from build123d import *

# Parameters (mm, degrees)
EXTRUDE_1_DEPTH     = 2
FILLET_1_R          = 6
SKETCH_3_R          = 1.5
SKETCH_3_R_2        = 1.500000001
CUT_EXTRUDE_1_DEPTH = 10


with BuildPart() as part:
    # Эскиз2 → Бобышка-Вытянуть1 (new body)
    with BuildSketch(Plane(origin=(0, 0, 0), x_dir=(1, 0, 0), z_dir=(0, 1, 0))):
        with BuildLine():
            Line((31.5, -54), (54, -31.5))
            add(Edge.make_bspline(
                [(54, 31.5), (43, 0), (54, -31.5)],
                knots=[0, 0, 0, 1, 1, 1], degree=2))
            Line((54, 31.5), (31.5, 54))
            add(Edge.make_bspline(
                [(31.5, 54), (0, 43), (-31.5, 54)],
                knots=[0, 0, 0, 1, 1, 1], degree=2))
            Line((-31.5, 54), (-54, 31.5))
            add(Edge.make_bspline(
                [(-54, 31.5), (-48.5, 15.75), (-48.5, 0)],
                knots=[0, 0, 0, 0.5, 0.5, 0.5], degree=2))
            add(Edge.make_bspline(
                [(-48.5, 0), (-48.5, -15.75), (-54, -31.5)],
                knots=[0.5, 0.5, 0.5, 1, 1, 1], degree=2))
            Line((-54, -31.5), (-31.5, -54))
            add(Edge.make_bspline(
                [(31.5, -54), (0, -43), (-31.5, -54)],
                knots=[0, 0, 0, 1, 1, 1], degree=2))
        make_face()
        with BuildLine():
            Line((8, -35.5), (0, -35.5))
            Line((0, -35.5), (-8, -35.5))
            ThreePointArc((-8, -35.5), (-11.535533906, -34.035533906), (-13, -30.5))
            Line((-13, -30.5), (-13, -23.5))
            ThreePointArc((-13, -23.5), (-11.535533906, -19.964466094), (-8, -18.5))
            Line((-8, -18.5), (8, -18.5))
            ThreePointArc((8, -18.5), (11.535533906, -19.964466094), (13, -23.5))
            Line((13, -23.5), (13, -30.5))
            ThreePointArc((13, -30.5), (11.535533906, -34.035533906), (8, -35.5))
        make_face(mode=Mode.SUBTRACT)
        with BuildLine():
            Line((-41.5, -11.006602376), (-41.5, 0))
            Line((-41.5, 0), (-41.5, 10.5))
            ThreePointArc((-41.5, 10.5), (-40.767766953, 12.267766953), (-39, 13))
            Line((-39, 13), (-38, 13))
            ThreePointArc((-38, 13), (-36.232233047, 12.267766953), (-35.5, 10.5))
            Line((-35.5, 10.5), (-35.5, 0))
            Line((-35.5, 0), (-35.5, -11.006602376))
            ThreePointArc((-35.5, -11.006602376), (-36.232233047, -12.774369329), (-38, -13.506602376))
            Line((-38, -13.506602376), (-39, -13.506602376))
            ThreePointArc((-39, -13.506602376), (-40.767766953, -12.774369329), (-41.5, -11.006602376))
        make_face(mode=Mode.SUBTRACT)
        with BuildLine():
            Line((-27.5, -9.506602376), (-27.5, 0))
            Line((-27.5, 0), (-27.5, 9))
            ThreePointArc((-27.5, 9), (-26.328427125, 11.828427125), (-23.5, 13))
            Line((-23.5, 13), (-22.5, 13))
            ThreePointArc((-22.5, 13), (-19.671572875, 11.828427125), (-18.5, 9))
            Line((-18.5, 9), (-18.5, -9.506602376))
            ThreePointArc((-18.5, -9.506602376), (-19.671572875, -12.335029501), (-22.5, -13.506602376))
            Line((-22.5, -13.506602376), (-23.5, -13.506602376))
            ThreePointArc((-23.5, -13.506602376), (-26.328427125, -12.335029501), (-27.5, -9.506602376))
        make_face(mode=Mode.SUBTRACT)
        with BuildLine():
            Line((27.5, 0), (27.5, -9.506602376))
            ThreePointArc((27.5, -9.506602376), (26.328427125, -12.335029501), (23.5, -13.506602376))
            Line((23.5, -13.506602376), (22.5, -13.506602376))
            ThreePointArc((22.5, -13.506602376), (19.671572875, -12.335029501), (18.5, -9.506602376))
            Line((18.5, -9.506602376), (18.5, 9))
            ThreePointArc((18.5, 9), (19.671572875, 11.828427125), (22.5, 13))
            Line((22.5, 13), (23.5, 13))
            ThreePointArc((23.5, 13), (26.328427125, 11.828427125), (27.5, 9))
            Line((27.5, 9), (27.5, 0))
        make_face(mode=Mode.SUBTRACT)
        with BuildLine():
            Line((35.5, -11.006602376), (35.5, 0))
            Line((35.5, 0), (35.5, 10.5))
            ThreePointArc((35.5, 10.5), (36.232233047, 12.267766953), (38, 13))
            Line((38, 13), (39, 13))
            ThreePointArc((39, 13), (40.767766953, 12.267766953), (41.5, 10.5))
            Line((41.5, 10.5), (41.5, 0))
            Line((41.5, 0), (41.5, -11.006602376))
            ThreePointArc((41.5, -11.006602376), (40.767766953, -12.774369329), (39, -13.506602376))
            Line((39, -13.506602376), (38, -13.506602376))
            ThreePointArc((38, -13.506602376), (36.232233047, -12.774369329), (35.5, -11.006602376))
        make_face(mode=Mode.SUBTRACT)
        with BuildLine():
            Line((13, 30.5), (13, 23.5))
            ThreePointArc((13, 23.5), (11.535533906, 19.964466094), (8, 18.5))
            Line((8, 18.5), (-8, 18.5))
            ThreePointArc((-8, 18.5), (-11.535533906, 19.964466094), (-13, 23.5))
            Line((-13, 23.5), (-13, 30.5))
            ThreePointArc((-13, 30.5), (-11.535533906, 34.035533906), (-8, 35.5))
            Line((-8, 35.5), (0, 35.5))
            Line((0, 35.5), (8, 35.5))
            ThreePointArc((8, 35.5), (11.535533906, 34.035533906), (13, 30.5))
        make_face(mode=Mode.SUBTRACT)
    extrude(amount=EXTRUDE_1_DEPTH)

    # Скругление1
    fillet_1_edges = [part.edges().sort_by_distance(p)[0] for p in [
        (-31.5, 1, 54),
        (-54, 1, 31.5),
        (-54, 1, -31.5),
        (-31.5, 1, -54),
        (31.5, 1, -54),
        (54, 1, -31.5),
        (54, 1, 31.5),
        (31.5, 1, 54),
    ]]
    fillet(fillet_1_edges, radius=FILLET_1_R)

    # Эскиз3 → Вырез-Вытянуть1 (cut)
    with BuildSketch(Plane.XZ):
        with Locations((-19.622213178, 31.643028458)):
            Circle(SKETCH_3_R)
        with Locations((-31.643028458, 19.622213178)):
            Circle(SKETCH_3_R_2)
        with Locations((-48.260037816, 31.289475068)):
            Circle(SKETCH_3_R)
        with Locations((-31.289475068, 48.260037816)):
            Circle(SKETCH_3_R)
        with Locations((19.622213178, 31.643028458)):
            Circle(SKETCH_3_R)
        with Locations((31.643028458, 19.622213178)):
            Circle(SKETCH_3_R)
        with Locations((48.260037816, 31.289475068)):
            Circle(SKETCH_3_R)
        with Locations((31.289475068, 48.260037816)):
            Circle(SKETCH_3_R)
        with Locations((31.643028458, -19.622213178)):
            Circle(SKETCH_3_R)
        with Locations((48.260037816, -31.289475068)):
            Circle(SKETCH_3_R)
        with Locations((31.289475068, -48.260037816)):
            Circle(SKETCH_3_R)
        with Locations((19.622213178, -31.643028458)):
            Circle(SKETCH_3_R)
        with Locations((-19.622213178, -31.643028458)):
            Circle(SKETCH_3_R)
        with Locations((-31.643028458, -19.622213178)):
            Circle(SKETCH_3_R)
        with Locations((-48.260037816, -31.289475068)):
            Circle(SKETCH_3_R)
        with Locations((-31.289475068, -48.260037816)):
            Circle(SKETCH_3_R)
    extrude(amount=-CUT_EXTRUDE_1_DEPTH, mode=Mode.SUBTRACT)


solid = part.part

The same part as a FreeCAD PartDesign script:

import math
import FreeCAD as App
import Part
import Sketcher

V = App.Vector


def edges_at(feature, points):
    """Names of the edges that pass closest to the given points."""
    edges = feature.Shape.Edges
    near = lambda p: min(range(len(edges)), key=lambda i: edges[i].distToShape(Part.Vertex(*p))[0])
    return sorted({f"Edge{near(p) + 1}" for p in points})

doc = App.newDocument("Part")
body = doc.addObject("PartDesign::Body", "Body")

# Sketch on XZ plane
sketch1 = body.newObject("Sketcher::SketchObject", "Sketch")
sketch1.AttachmentSupport = (doc.getObject("XZ_Plane"), [""])
sketch1.MapMode = "FlatFace"
sketch1.addGeometry([
    Part.LineSegment(V(31.5, 54, 0), V(54, 31.5, 0)),  # 0
    Part.BSplineCurve([V(54, -31.5, 0), V(43, 0, 0), V(54, 31.5, 0)], [3, 3], [0, 1], False, 2, [1, 1, 1], False),  # 1
    Part.LineSegment(V(54, -31.5, 0), V(31.5, -54, 0)),  # 2
    Part.BSplineCurve([V(31.5, -54, 0), V(0, -43, 0), V(-31.5, -54, 0)], [3, 3], [0, 1], False, 2, [1, 1, 1], False),  # 3
    Part.LineSegment(V(-31.5, -54, 0), V(-54, -31.5, 0)),  # 4
    Part.BSplineCurve([V(-54, -31.5, 0), V(-43, 0, 0), V(-54, 31.5, 0)], [3, 3], [0, 1], False, 2, [1, 1, 1], False),  # 5
    Part.LineSegment(V(-54, 31.5, 0), V(-31.5, 54, 0)),  # 6
    Part.BSplineCurve([V(31.5, 54, 0), V(0, 43, 0), V(-31.5, 54, 0)], [3, 3], [0, 1], False, 2, [1, 1, 1], False),  # 7
    Part.ArcOfCircle(Part.Circle(V(-39, 11.006602, 0), V(0, 0, 1), 2.5), math.radians(90), math.radians(180)),  # 8
    Part.LineSegment(V(-41.5, 11.006602, 0), V(-41.5, -10.5, 0)),  # 9
    Part.ArcOfCircle(Part.Circle(V(-39, -10.5, 0), V(0, 0, 1), 2.5), math.radians(180), math.radians(270)),  # 10
    Part.LineSegment(V(-39, -13, 0), V(-38, -13, 0)),  # 11
    Part.ArcOfCircle(Part.Circle(V(-38, -10.5, 0), V(0, 0, 1), 2.5), math.radians(-90), math.radians(0)),  # 12
    Part.LineSegment(V(-35.5, -10.5, 0), V(-35.5, 11.006602, 0)),  # 13
    Part.ArcOfCircle(Part.Circle(V(-38, 11.006602, 0), V(0, 0, 1), 2.5), math.radians(0), math.radians(90)),  # 14
    Part.LineSegment(V(-38, 13.506602, 0), V(-39, 13.506602, 0)),  # 15
    Part.ArcOfCircle(Part.Circle(V(-23.5, 9.506602, 0), V(0, 0, 1), 4), math.radians(90), math.radians(180)),  # 16
    Part.LineSegment(V(-27.5, 9.506602, 0), V(-27.5, -9, 0)),  # 17
    Part.ArcOfCircle(Part.Circle(V(-23.5, -9, 0), V(0, 0, 1), 4), math.radians(180), math.radians(270)),  # 18
    Part.LineSegment(V(-23.5, -13, 0), V(-22.5, -13, 0)),  # 19
    Part.ArcOfCircle(Part.Circle(V(-22.5, -9, 0), V(0, 0, 1), 4), math.radians(-90), math.radians(0)),  # 20
    Part.LineSegment(V(-18.5, -9, 0), V(-18.5, 9.506602, 0)),  # 21
    Part.ArcOfCircle(Part.Circle(V(-22.5, 9.506602, 0), V(0, 0, 1), 4), math.radians(0), math.radians(90)),  # 22
    Part.LineSegment(V(-22.5, 13.506602, 0), V(-23.5, 13.506602, 0)),  # 23
    Part.ArcOfCircle(Part.Circle(V(8, 30.5, 0), V(0, 0, 1), 5), math.radians(0), math.radians(90)),  # 24
    Part.LineSegment(V(8, 35.5, 0), V(-8, 35.5, 0)),  # 25
    Part.ArcOfCircle(Part.Circle(V(-8, 30.5, 0), V(0, 0, 1), 5), math.radians(90), math.radians(180)),  # 26
    Part.LineSegment(V(-13, 30.5, 0), V(-13, 23.5, 0)),  # 27
    Part.ArcOfCircle(Part.Circle(V(-8, 23.5, 0), V(0, 0, 1), 5), math.radians(180), math.radians(270)),  # 28
    Part.LineSegment(V(-8, 18.5, 0), V(8, 18.5, 0)),  # 29
    Part.ArcOfCircle(Part.Circle(V(8, 23.5, 0), V(0, 0, 1), 5), math.radians(-90), math.radians(0)),  # 30
    Part.LineSegment(V(13, 23.5, 0), V(13, 30.5, 0)),  # 31
    Part.LineSegment(V(27.5, -9, 0), V(27.5, 9.506602, 0)),  # 32
    Part.ArcOfCircle(Part.Circle(V(23.5, 9.506602, 0), V(0, 0, 1), 4), math.radians(0), math.radians(90)),  # 33
    Part.LineSegment(V(23.5, 13.506602, 0), V(22.5, 13.506602, 0)),  # 34
    Part.ArcOfCircle(Part.Circle(V(22.5, 9.506602, 0), V(0, 0, 1), 4), math.radians(90), math.radians(180)),  # 35
    Part.LineSegment(V(18.5, 9.506602, 0), V(18.5, -9, 0)),  # 36
    Part.ArcOfCircle(Part.Circle(V(22.5, -9, 0), V(0, 0, 1), 4), math.radians(180), math.radians(270)),  # 37
    Part.LineSegment(V(22.5, -13, 0), V(23.5, -13, 0)),  # 38
    Part.ArcOfCircle(Part.Circle(V(23.5, -9, 0), V(0, 0, 1), 4), math.radians(-90), math.radians(0)),  # 39
    Part.ArcOfCircle(Part.Circle(V(38, 11.006602, 0), V(0, 0, 1), 2.5), math.radians(90), math.radians(180)),  # 40
    Part.LineSegment(V(35.5, 11.006602, 0), V(35.5, -10.5, 0)),  # 41
    Part.ArcOfCircle(Part.Circle(V(38, -10.5, 0), V(0, 0, 1), 2.5), math.radians(180), math.radians(270)),  # 42
    Part.LineSegment(V(38, -13, 0), V(39, -13, 0)),  # 43
    Part.ArcOfCircle(Part.Circle(V(39, -10.5, 0), V(0, 0, 1), 2.5), math.radians(-90), math.radians(0)),  # 44
    Part.LineSegment(V(41.5, -10.5, 0), V(41.5, 11.006602, 0)),  # 45
    Part.ArcOfCircle(Part.Circle(V(39, 11.006602, 0), V(0, 0, 1), 2.5), math.radians(0), math.radians(90)),  # 46
    Part.LineSegment(V(39, 13.506602, 0), V(38, 13.506602, 0)),  # 47
    Part.ArcOfCircle(Part.Circle(V(8, -30.5, 0), V(0, 0, 1), 5), math.radians(-90), math.radians(0)),  # 48
    Part.LineSegment(V(13, -30.5, 0), V(13, -23.5, 0)),  # 49
    Part.ArcOfCircle(Part.Circle(V(8, -23.5, 0), V(0, 0, 1), 5), math.radians(0), math.radians(90)),  # 50
    Part.LineSegment(V(8, -18.5, 0), V(-8, -18.5, 0)),  # 51
    Part.ArcOfCircle(Part.Circle(V(-8, -23.5, 0), V(0, 0, 1), 5), math.radians(90), math.radians(180)),  # 52
    Part.LineSegment(V(-13, -23.5, 0), V(-13, -30.5, 0)),  # 53
    Part.ArcOfCircle(Part.Circle(V(-8, -30.5, 0), V(0, 0, 1), 5), math.radians(180), math.radians(270)),  # 54
    Part.LineSegment(V(-8, -35.5, 0), V(8, -35.5, 0)),  # 55
], False)
sketch1.addConstraint([
    Sketcher.Constraint("Block", 1),
    Sketcher.Constraint("Block", 3),
    Sketcher.Constraint("Block", 5),
    Sketcher.Constraint("Block", 7),
    Sketcher.Constraint("Coincident", 0, 2, 1, 2),
    Sketcher.Constraint("Coincident", 1, 1, 2, 1),
    Sketcher.Constraint("Coincident", 2, 2, 3, 1),
    Sketcher.Constraint("Coincident", 3, 2, 4, 1),
    Sketcher.Constraint("Coincident", 4, 2, 5, 1),
    Sketcher.Constraint("Coincident", 5, 2, 6, 1),
    Sketcher.Constraint("Coincident", 6, 2, 7, 2),
    Sketcher.Constraint("Coincident", 7, 1, 0, 1),
    Sketcher.Constraint("Tangent", 8, 2, 9, 1),
    Sketcher.Constraint("Tangent", 9, 2, 10, 1),
    Sketcher.Constraint("Tangent", 10, 2, 11, 1),
    Sketcher.Constraint("Tangent", 11, 2, 12, 1),
    Sketcher.Constraint("Tangent", 12, 2, 13, 1),
    Sketcher.Constraint("Tangent", 13, 2, 14, 1),
    Sketcher.Constraint("Tangent", 14, 2, 15, 1),
    Sketcher.Constraint("Tangent", 15, 2, 8, 1),
    Sketcher.Constraint("Tangent", 16, 2, 17, 1),
    Sketcher.Constraint("Tangent", 17, 2, 18, 1),
    Sketcher.Constraint("Tangent", 18, 2, 19, 1),
    Sketcher.Constraint("Tangent", 19, 2, 20, 1),
    Sketcher.Constraint("Tangent", 20, 2, 21, 1),
    Sketcher.Constraint("Tangent", 21, 2, 22, 1),
    Sketcher.Constraint("Tangent", 22, 2, 23, 1),
    Sketcher.Constraint("Tangent", 23, 2, 16, 1),
    Sketcher.Constraint("Tangent", 24, 2, 25, 1),
    Sketcher.Constraint("Tangent", 25, 2, 26, 1),
    Sketcher.Constraint("Tangent", 26, 2, 27, 1),
    Sketcher.Constraint("Tangent", 27, 2, 28, 1),
    Sketcher.Constraint("Tangent", 28, 2, 29, 1),
    Sketcher.Constraint("Tangent", 29, 2, 30, 1),
    Sketcher.Constraint("Tangent", 30, 2, 31, 1),
    Sketcher.Constraint("Tangent", 31, 2, 24, 1),
    Sketcher.Constraint("Tangent", 32, 2, 33, 1),
    Sketcher.Constraint("Tangent", 33, 2, 34, 1),
    Sketcher.Constraint("Tangent", 34, 2, 35, 1),
    Sketcher.Constraint("Tangent", 35, 2, 36, 1),
    Sketcher.Constraint("Tangent", 36, 2, 37, 1),
    Sketcher.Constraint("Tangent", 37, 2, 38, 1),
    Sketcher.Constraint("Tangent", 38, 2, 39, 1),
    Sketcher.Constraint("Tangent", 39, 2, 32, 1),
    Sketcher.Constraint("Tangent", 40, 2, 41, 1),
    Sketcher.Constraint("Tangent", 41, 2, 42, 1),
    Sketcher.Constraint("Tangent", 42, 2, 43, 1),
    Sketcher.Constraint("Tangent", 43, 2, 44, 1),
    Sketcher.Constraint("Tangent", 44, 2, 45, 1),
    Sketcher.Constraint("Tangent", 45, 2, 46, 1),
    Sketcher.Constraint("Tangent", 46, 2, 47, 1),
    Sketcher.Constraint("Tangent", 47, 2, 40, 1),
    Sketcher.Constraint("Tangent", 48, 2, 49, 1),
    Sketcher.Constraint("Tangent", 49, 2, 50, 1),
    Sketcher.Constraint("Tangent", 50, 2, 51, 1),
    Sketcher.Constraint("Tangent", 51, 2, 52, 1),
    Sketcher.Constraint("Tangent", 52, 2, 53, 1),
    Sketcher.Constraint("Tangent", 53, 2, 54, 1),
    Sketcher.Constraint("Tangent", 54, 2, 55, 1),
    Sketcher.Constraint("Tangent", 55, 2, 48, 1),
    Sketcher.Constraint("Vertical", 9),
    Sketcher.Constraint("Horizontal", 11),
    Sketcher.Constraint("Vertical", 13),
    Sketcher.Constraint("Horizontal", 15),
    Sketcher.Constraint("Vertical", 17),
    Sketcher.Constraint("Horizontal", 19),
    Sketcher.Constraint("Vertical", 21),
    Sketcher.Constraint("Horizontal", 23),
    Sketcher.Constraint("Horizontal", 25),
    Sketcher.Constraint("Vertical", 27),
    Sketcher.Constraint("Horizontal", 29),
    Sketcher.Constraint("Vertical", 31),
    Sketcher.Constraint("Vertical", 32),
    Sketcher.Constraint("Horizontal", 34),
    Sketcher.Constraint("Vertical", 36),
    Sketcher.Constraint("Horizontal", 38),
    Sketcher.Constraint("Vertical", 41),
    Sketcher.Constraint("Horizontal", 43),
    Sketcher.Constraint("Vertical", 45),
    Sketcher.Constraint("Horizontal", 47),
    Sketcher.Constraint("Vertical", 49),
    Sketcher.Constraint("Horizontal", 51),
    Sketcher.Constraint("Vertical", 53),
    Sketcher.Constraint("Horizontal", 55),
    Sketcher.Constraint("Equal", 8, 10),
    Sketcher.Constraint("Equal", 10, 12),
    Sketcher.Constraint("Equal", 12, 14),
    Sketcher.Constraint("Equal", 16, 18),
    Sketcher.Constraint("Equal", 18, 20),
    Sketcher.Constraint("Equal", 20, 22),
    Sketcher.Constraint("Equal", 24, 26),
    Sketcher.Constraint("Equal", 26, 28),
    Sketcher.Constraint("Equal", 28, 30),
    Sketcher.Constraint("Equal", 22, 33),
    Sketcher.Constraint("Equal", 33, 35),
    Sketcher.Constraint("Equal", 35, 37),
    Sketcher.Constraint("Equal", 37, 39),
    Sketcher.Constraint("Equal", 14, 40),
    Sketcher.Constraint("Equal", 40, 42),
    Sketcher.Constraint("Equal", 42, 44),
    Sketcher.Constraint("Equal", 44, 46),
    Sketcher.Constraint("Equal", 30, 48),
    Sketcher.Constraint("Equal", 48, 50),
    Sketcher.Constraint("Equal", 50, 52),
    Sketcher.Constraint("Equal", 52, 54),
    Sketcher.Constraint("Symmetric", 26, 3, 48, 3, -1, 1),
    Sketcher.Constraint("Symmetric", 30, 3, 52, 3, -1, 1),
    Sketcher.Constraint("Symmetric", 16, 3, 33, 3, -2),
    Sketcher.Constraint("Symmetric", 20, 3, 37, 3, -2),
    Sketcher.Constraint("Symmetric", 14, 3, 40, 3, -2),
    Sketcher.Constraint("Symmetric", 10, 3, 44, 3, -2),
    Sketcher.Constraint("Horizontal", 11, 2, 18, 2),
    Sketcher.Constraint("Horizontal", 15, 2, 22, 2),
    Sketcher.Constraint("Vertical", 30, 3, 48, 3),
    Sketcher.Constraint("Equal", 15, 19),
    Sketcher.Constraint("Radius", 16, 4.0),
    Sketcher.Constraint("Radius", 24, 5.0),
    Sketcher.Constraint("Radius", 8, 2.5),
    Sketcher.Constraint("DistanceX", 11, 1, 11, 2, 1.0),
    Sketcher.Constraint("DistanceX", 25, 2, 25, 1, 16.0),
    Sketcher.Constraint("DistanceY", 27, 2, 27, 1, 7.0),
    Sketcher.Constraint("DistanceX", 8, 3, -1, 1, 39.0),
    Sketcher.Constraint("DistanceY", 18, 3, -1, 1, 9.0),
    Sketcher.Constraint("DistanceX", 16, 3, -1, 1, 23.5),
    Sketcher.Constraint("DistanceY", -1, 1, 24, 3, 30.5),
    Sketcher.Constraint("DistanceY", 9, 2, 9, 1, 21.506602),
])
pad1 = body.newObject("PartDesign::Pad", "Pad")
pad1.Profile = sketch1
pad1.Length = 2
pad1.Reversed = True
doc.recompute()

fillet = body.newObject("PartDesign::Fillet", "Fillet")
fillet.Base = (pad1, edges_at(pad1, [
    (-31.5, 1, 54),
    (-54, 1, 31.5),
    (-54, 1, -31.5),
    (-31.5, 1, -54),
    (31.5, 1, -54),
    (54, 1, -31.5),
    (54, 1, 31.5),
    (31.5, 1, 54),
]))
fillet.Radius = 6

# Sketch on XZ plane
sketch2 = body.newObject("Sketcher::SketchObject", "Sketch001")
sketch2.AttachmentSupport = (doc.getObject("XZ_Plane"), [""])
sketch2.MapMode = "FlatFace"
sketch2.addGeometry([
    Part.Circle(V(-19.6, 31.6, 0), V(0, 0, 1), 1.5),  # 0
    Part.Circle(V(-31.6, 19.6, 0), V(0, 0, 1), 1.5),  # 1
    Part.Circle(V(-48.3, 31.3, 0), V(0, 0, 1), 1.5),  # 2
    Part.Circle(V(-31.3, 48.3, 0), V(0, 0, 1), 1.5),  # 3
    Part.Circle(V(19.6, 31.6, 0), V(0, 0, 1), 1.5),  # 4
    Part.Circle(V(31.6, 19.6, 0), V(0, 0, 1), 1.5),  # 5
    Part.Circle(V(48.3, 31.3, 0), V(0, 0, 1), 1.5),  # 6
    Part.Circle(V(31.3, 48.3, 0), V(0, 0, 1), 1.5),  # 7
    Part.Circle(V(31.6, -19.6, 0), V(0, 0, 1), 1.5),  # 8
    Part.Circle(V(48.3, -31.3, 0), V(0, 0, 1), 1.5),  # 9
    Part.Circle(V(31.3, -48.3, 0), V(0, 0, 1), 1.5),  # 10
    Part.Circle(V(19.6, -31.6, 0), V(0, 0, 1), 1.5),  # 11
    Part.Circle(V(-19.6, -31.6, 0), V(0, 0, 1), 1.5),  # 12
    Part.Circle(V(-31.6, -19.6, 0), V(0, 0, 1), 1.5),  # 13
    Part.Circle(V(-48.3, -31.3, 0), V(0, 0, 1), 1.5),  # 14
    Part.Circle(V(-31.3, -48.3, 0), V(0, 0, 1), 1.5),  # 15
], False)
sketch2.addConstraint([
    Sketcher.Constraint("Equal", 0, 1),
    Sketcher.Constraint("Equal", 1, 2),
    Sketcher.Constraint("Equal", 2, 3),
    Sketcher.Constraint("Equal", 3, 4),
    Sketcher.Constraint("Equal", 4, 5),
    Sketcher.Constraint("Equal", 5, 6),
    Sketcher.Constraint("Equal", 6, 7),
    Sketcher.Constraint("Equal", 7, 8),
    Sketcher.Constraint("Equal", 8, 9),
    Sketcher.Constraint("Equal", 9, 10),
    Sketcher.Constraint("Equal", 10, 11),
    Sketcher.Constraint("Equal", 11, 12),
    Sketcher.Constraint("Equal", 12, 13),
    Sketcher.Constraint("Equal", 13, 14),
    Sketcher.Constraint("Equal", 14, 15),
    Sketcher.Constraint("Symmetric", 1, 3, 8, 3, -1, 1),
    Sketcher.Constraint("Symmetric", 2, 3, 9, 3, -1, 1),
    Sketcher.Constraint("Symmetric", 3, 3, 10, 3, -1, 1),
    Sketcher.Constraint("Symmetric", 0, 3, 11, 3, -1, 1),
    Sketcher.Constraint("Symmetric", 4, 3, 12, 3, -1, 1),
    Sketcher.Constraint("Symmetric", 5, 3, 13, 3, -1, 1),
    Sketcher.Constraint("Symmetric", 6, 3, 14, 3, -1, 1),
    Sketcher.Constraint("Symmetric", 7, 3, 15, 3, -1, 1),
    Sketcher.Constraint("Symmetric", 0, 3, 4, 3, -2),
    Sketcher.Constraint("Symmetric", 1, 3, 5, 3, -2),
    Sketcher.Constraint("Symmetric", 2, 3, 6, 3, -2),
    Sketcher.Constraint("Symmetric", 3, 3, 7, 3, -2),
    Sketcher.Constraint("Diameter", 0, 3.0),
    Sketcher.Constraint("DistanceY", -1, 1, 0, 3, 31.643028),
    Sketcher.Constraint("DistanceX", 1, 3, -1, 1, 31.643028),
    Sketcher.Constraint("DistanceX", 2, 3, 1, 3, 16.617009),
    Sketcher.Constraint("DistanceY", 1, 3, 2, 3, 11.667262),
    Sketcher.Constraint("DistanceX", 3, 3, 0, 3, 11.667262),
    Sketcher.Constraint("DistanceY", 0, 3, 3, 3, 16.617009),
    Sketcher.Constraint("DistanceX", 1, 3, 4, 3, 51.265242),
    Sketcher.Constraint("DistanceY", 8, 3, 4, 3, 51.265242),
])
pocket1 = body.newObject("PartDesign::Pocket", "Pocket")
pocket1.Profile = sketch2
pocket1.Length = 10

doc.recompute()
